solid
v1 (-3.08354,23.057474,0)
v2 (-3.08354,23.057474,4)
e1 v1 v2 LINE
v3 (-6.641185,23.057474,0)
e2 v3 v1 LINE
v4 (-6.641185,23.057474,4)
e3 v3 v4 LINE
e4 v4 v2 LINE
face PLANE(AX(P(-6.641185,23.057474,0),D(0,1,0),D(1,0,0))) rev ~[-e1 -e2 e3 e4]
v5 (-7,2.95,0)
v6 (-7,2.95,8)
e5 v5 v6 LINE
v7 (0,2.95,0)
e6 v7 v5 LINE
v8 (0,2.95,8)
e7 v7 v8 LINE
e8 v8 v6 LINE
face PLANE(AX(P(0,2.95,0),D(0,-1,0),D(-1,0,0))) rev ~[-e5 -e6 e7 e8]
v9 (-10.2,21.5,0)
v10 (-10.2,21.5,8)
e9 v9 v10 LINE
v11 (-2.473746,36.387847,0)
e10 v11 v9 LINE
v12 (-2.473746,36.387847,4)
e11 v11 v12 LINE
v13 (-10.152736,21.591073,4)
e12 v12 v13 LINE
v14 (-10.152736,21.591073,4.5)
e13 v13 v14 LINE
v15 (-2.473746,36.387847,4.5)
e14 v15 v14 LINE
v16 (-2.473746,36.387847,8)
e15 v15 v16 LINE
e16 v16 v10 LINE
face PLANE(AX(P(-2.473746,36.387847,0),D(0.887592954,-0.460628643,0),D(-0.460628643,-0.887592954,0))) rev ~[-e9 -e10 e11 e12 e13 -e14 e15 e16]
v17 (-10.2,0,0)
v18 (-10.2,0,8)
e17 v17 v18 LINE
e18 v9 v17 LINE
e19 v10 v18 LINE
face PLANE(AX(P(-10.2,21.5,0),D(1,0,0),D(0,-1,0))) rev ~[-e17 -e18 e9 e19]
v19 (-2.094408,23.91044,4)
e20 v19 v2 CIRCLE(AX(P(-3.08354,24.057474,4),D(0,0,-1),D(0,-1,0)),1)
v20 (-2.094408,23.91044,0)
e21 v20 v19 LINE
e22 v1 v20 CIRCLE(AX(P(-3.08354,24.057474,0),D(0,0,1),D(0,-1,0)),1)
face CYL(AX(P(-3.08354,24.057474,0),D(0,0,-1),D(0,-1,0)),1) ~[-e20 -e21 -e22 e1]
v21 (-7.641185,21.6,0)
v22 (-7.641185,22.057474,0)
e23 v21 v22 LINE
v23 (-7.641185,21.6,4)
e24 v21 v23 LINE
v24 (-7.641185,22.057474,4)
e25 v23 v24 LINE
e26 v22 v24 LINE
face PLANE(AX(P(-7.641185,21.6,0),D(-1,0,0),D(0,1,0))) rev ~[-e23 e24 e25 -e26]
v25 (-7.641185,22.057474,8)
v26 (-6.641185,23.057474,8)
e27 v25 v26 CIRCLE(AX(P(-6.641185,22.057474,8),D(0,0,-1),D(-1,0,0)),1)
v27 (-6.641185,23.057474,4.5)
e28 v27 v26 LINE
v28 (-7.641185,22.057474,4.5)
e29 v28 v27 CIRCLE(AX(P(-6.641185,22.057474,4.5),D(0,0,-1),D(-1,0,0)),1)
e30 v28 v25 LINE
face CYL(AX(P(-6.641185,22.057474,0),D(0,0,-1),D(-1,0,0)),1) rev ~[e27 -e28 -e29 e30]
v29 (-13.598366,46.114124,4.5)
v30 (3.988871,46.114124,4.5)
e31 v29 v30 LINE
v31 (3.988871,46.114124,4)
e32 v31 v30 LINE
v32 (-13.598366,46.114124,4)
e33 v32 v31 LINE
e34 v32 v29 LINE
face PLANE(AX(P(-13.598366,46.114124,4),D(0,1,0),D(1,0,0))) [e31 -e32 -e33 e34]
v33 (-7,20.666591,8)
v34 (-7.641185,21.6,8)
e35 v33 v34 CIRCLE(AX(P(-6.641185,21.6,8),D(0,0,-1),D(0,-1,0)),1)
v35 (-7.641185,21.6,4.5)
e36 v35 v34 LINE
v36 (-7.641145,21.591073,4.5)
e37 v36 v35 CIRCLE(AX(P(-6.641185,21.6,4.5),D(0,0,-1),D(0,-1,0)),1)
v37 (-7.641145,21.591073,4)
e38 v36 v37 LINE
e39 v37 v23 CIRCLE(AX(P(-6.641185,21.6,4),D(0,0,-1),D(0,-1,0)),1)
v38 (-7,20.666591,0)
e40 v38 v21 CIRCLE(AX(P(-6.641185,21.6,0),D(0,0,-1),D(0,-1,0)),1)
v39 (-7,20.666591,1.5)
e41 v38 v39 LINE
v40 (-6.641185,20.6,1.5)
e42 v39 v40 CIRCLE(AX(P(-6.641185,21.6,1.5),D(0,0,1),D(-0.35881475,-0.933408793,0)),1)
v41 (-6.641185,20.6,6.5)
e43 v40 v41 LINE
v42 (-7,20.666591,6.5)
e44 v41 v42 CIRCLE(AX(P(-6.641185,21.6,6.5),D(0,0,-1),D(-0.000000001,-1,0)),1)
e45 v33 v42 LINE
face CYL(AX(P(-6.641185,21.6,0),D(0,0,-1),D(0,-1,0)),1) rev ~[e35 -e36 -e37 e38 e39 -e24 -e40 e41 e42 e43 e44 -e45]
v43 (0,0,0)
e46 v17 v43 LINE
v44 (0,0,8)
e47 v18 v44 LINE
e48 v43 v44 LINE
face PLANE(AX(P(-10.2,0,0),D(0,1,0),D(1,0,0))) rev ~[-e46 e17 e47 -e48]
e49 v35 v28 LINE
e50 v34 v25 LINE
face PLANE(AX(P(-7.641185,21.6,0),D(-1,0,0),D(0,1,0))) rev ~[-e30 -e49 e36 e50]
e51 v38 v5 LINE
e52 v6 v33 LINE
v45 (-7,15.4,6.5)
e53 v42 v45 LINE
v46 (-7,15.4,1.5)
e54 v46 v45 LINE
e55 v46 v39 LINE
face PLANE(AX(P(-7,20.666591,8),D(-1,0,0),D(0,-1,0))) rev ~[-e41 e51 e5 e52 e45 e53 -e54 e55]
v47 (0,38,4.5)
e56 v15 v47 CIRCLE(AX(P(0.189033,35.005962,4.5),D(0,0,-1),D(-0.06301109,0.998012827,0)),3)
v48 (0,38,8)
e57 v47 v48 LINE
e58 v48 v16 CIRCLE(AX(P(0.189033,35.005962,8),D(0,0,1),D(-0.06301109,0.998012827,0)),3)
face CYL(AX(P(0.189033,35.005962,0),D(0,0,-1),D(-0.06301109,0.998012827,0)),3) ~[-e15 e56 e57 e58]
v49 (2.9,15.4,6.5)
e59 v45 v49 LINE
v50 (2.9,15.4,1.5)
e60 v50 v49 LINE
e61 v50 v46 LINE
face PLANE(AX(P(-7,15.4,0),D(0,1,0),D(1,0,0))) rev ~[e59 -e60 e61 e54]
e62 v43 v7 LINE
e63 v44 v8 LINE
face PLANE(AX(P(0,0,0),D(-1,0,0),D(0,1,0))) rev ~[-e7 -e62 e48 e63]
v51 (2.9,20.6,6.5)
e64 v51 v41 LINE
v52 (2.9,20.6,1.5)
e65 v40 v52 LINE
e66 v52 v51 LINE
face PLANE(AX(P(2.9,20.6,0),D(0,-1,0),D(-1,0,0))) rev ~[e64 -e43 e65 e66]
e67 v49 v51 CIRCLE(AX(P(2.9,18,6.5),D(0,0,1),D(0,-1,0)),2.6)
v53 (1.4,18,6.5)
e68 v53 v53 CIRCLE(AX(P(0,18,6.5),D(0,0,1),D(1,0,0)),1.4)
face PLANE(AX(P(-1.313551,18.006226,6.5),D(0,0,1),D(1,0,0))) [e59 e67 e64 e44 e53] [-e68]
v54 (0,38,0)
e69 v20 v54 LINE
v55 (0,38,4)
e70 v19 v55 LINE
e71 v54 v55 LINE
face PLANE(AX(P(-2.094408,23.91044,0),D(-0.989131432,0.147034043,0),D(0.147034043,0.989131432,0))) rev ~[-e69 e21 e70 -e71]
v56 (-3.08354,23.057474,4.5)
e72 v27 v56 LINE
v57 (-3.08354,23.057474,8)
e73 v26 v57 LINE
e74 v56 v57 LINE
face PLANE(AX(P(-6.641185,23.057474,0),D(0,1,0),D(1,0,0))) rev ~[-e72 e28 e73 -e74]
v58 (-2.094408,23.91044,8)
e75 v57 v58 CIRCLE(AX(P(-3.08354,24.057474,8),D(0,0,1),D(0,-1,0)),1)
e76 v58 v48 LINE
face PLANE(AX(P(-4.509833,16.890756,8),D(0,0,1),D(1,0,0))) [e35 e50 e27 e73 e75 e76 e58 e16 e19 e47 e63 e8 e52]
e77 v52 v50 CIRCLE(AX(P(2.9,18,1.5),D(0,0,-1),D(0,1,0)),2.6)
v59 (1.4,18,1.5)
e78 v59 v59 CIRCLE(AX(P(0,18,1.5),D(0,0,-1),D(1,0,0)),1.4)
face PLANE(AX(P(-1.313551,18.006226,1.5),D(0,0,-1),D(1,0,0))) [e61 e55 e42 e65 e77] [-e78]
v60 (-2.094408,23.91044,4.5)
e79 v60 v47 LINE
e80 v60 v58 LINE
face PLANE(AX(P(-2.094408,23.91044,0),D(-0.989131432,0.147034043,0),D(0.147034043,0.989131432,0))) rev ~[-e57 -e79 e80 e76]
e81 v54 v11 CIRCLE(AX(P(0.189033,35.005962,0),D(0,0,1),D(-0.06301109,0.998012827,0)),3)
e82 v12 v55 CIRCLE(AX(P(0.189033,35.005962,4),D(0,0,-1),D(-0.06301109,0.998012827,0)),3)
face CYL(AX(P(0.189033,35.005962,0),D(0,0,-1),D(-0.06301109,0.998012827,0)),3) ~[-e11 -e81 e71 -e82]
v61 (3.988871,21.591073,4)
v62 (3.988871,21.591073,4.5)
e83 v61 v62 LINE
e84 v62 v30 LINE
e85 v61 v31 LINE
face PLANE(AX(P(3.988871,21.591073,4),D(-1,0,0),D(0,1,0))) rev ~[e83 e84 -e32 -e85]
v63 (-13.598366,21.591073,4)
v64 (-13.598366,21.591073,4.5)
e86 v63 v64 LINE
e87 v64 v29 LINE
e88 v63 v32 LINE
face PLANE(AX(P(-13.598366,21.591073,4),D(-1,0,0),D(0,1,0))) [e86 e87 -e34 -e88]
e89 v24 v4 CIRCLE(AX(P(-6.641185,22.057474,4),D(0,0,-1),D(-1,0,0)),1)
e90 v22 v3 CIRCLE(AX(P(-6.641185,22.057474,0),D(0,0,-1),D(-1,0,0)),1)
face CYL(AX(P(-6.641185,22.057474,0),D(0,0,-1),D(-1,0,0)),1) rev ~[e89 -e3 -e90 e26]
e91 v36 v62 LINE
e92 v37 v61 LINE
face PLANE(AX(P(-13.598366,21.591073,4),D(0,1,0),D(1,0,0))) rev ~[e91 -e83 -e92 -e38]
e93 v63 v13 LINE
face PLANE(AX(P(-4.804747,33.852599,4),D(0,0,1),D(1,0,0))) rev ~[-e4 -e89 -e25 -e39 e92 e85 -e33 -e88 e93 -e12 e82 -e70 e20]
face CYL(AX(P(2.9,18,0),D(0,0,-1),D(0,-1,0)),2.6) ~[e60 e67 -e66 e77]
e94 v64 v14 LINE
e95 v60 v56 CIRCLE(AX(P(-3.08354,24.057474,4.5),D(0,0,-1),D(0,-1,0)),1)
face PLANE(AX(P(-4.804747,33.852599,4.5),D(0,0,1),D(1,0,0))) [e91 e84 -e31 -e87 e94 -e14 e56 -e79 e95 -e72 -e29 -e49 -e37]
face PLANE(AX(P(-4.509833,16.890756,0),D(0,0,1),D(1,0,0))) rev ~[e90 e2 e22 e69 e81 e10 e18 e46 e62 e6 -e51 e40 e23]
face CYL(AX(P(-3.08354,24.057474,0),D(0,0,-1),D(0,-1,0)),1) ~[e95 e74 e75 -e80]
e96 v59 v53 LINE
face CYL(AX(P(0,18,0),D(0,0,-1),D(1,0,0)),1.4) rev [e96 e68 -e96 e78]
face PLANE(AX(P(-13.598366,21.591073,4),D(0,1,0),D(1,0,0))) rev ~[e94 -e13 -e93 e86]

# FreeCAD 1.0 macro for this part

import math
import FreeCAD as App
import Part
import Sketcher
from FreeCAD import Vector


def add_polygon(sketch, points):
    """Adds a closed chain of lines whose ends are joined by coincident constraints."""
    first, n = sketch.GeometryCount, len(points)
    for a, b in zip(points, points[1:] + points[:1]):
        sketch.addGeometry(Part.LineSegment(App.Vector(*a, 0), App.Vector(*b, 0)), False)
    for i in range(n):
        sketch.addConstraint(Sketcher.Constraint("Coincident", first + i, 2, first + (i + 1) % n, 1))

doc = App.newDocument("Part")
body = doc.addObject("PartDesign::Body", "Body")

sketch1 = body.newObject("Sketcher::SketchObject", "Sketch")
sketch1.AttachmentSupport = (doc.getObject("XY_Plane"), [""])
sketch1.MapMode = "FlatFace"
sketch1.addGeometry([
    Part.LineSegment(Vector(-10.2, 0, 0), Vector(0, 0, 0)),
    Part.LineSegment(Vector(0, 0, 0), Vector(0, 2.95, 0)),
    Part.LineSegment(Vector(0, 2.95, 0), Vector(-7, 2.95, 0)),
    Part.LineSegment(Vector(-7, 2.95, 0), Vector(-7, 15.4, 0)),
    Part.LineSegment(Vector(-7, 15.4, 0), Vector(2.9, 15.4, 0)),
    Part.ArcOfCircle(Part.Circle(Vector(2.9, 18, 0), Vector(0, 0, 1), 2.6), math.radians(-90), math.radians(90)),
    Part.LineSegment(Vector(2.9, 20.6, 0), Vector(-6.64, 20.6, 0)),
    Part.ArcOfCircle(Part.Circle(Vector(-6.64, 21.6, 0), Vector(0, 0, 1), 1), math.radians(180), math.radians(270)),
    Part.LineSegment(Vector(-7.64, 21.6, 0), Vector(-7.64, 22.06, 0)),
    Part.ArcOfCircle(Part.Circle(Vector(-6.64, 22.06, 0), Vector(0, 0, 1), 1), math.radians(90), math.radians(180)),
    Part.LineSegment(Vector(-6.64, 23.06, 0), Vector(-3.08, 23.06, 0)),
    Part.ArcOfCircle(Part.Circle(Vector(-3.08, 24.06, 0), Vector(0, 0, 1), 1), math.radians(-90), math.radians(-8)),
    Part.LineSegment(Vector(-2.09, 23.91, 0), Vector(0, 38, 0)),
    Part.ArcOfCircle(Part.Circle(Vector(0.19, 35.01, 0), Vector(0, 0, 1), 3), math.radians(94), math.radians(153)),
    Part.LineSegment(Vector(-2.47, 36.39, 0), Vector(-10.2, 21.5, 0)),
    Part.LineSegment(Vector(-10.2, 21.5, 0), Vector(-10.2, 0, 0)),
    Part.Circle(Vector(0, 18, 0), Vector(0, 0, 1), 1.4),
], False)
sketch1.addConstraint([
    Sketcher.Constraint("Coincident", 0, 2, 1, 1),
    Sketcher.Constraint("Coincident", 1, 2, 2, 1),
    Sketcher.Constraint("Coincident", 2, 2, 3, 1),
    Sketcher.Constraint("Coincident", 3, 2, 4, 1),
    Sketcher.Constraint("Tangent", 4, 2, 5, 1),
    Sketcher.Constraint("Tangent", 5, 2, 6, 1),
    Sketcher.Constraint("Tangent", 6, 2, 7, 2),
    Sketcher.Constraint("Tangent", 7, 1, 8, 1),
    Sketcher.Constraint("Tangent", 8, 2, 9, 2),
    Sketcher.Constraint("Tangent", 9, 1, 10, 1),
    Sketcher.Constraint("Tangent", 10, 2, 11, 1),
    Sketcher.Constraint("Tangent", 11, 2, 12, 1),
    Sketcher.Constraint("Coincident", 12, 2, 13, 1),
    Sketcher.Constraint("Tangent", 13, 2, 14, 1),
    Sketcher.Constraint("Coincident", 14, 2, 15, 1),
    Sketcher.Constraint("Coincident", 15, 2, 0, 1),
    Sketcher.Constraint("Horizontal", 0),
    Sketcher.Constraint("Vertical", 1),
    Sketcher.Constraint("Horizontal", 2),
    Sketcher.Constraint("Vertical", 3),
    Sketcher.Constraint("Horizontal", 4),
    Sketcher.Constraint("Horizontal", 6),
    Sketcher.Constraint("Vertical", 8),
    Sketcher.Constraint("Horizontal", 10),
    Sketcher.Constraint("Vertical", 15),
    Sketcher.Constraint("Coincident", 0, 2, -1, 1),
    Sketcher.Constraint("Equal", 7, 9),
    Sketcher.Constraint("Equal", 9, 11),
    Sketcher.Constraint("PointOnObject", 16, 3, -2),
    Sketcher.Constraint("PointOnObject", 12, 2, -2),
    Sketcher.Constraint("Horizontal", 5, 3, 16, 3),
    Sketcher.Constraint("Radius", 7, 1.0),
    Sketcher.Constraint("Radius", 13, 3.0),
    Sketcher.Constraint("Diameter", 16, 2.8),
    Sketcher.Constraint("Radius", 5, 2.6),
    Sketcher.Constraint("DistanceX", 2, 2, 2, 1, 7.0),
    Sketcher.Constraint("DistanceX", 0, 1, 0, 2, 10.2),
    Sketcher.Constraint("DistanceX", 4, 1, 4, 2, 9.9),
    Sketcher.Constraint("DistanceY", 15, 2, 15, 1, 21.5),
    Sketcher.Constraint("DistanceY", -1, 1, 5, 3, 18.0),
    Sketcher.Constraint("DistanceY", -1, 1, 12, 2, 38.0),
    Sketcher.Constraint("DistanceY", 1, 1, 1, 2, 2.95),
    Sketcher.Constraint("DistanceX", 6, 2, 6, 1, 9.541185),
    Sketcher.Constraint("DistanceX", 10, 1, 10, 2, 3.557646),
    Sketcher.Constraint("DistanceY", 8, 1, 8, 2, 0.457474),
    Sketcher.Constraint("DistanceY", -1, 1, 13, 3, 35.005962),
])
pad1 = body.newObject("PartDesign::Pad", "Pad")
pad1.Profile = sketch1
pad1.Length = 8

sketch2 = body.newObject("Sketcher::SketchObject", "Sketch001")
sketch2.AttachmentSupport = (doc.getObject("XY_Plane"), [""])
sketch2.MapMode = "FlatFace"
sketch2.AttachmentOffset = App.Placement(Vector(0, 0, 4), App.Rotation())
add_polygon(sketch2, [(-14, 46), (-14, 22), (4, 22), (4, 46)])
sketch2.addConstraint([
    Sketcher.Constraint("Vertical", 0),
    Sketcher.Constraint("Horizontal", 1),
    Sketcher.Constraint("Vertical", 2),
    Sketcher.Constraint("Horizontal", 3),
    Sketcher.Constraint("DistanceY", 0, 2, 0, 1, 24.523051),
    Sketcher.Constraint("DistanceX", 1, 1, 1, 2, 17.587237),
    Sketcher.Constraint("DistanceX", -1, 1, 1, 2, 3.988871),
    Sketcher.Constraint("DistanceY", -1, 1, 0, 2, 21.591073),
])
pad2 = body.newObject("PartDesign::Pad", "Pad001")
pad2.Profile = sketch2
pad2.Length = 0.5

sketch3 = body.newObject("Sketcher::SketchObject", "Sketch002")
sketch3.AttachmentSupport = (doc.getObject("XY_Plane"), [""])
sketch3.MapMode = "FlatFace"
sketch3.AttachmentOffset = App.Placement(Vector(0, 0, 8), App.Rotation())
sketch3.addGeometry([
    Part.LineSegment(Vector(-7, 20.67, 0), Vector(-7, 15.4, 0)),
    Part.LineSegment(Vector(-7, 15.4, 0), Vector(2.9, 15.4, 0)),
    Part.ArcOfCircle(Part.Circle(Vector(2.9, 18, 0), Vector(0, 0, 1), 2.6), math.radians(-90), math.radians(90)),
    Part.LineSegment(Vector(2.9, 20.6, 0), Vector(-6.64, 20.6, 0)),
    Part.ArcOfCircle(Part.Circle(Vector(-6.64, 21.6, 0), Vector(0, 0, 1), 1), math.radians(-111), math.radians(-90)),
    Part.Circle(Vector(0, 18, 0), Vector(0, 0, 1), 1.4),
], False)
sketch3.addConstraint([
    Sketcher.Constraint("Coincident", 0, 2, 1, 1),
    Sketcher.Constraint("Tangent", 1, 2, 2, 1),
    Sketcher.Constraint("Tangent", 2, 2, 3, 1),
    Sketcher.Constraint("Tangent", 3, 2, 4, 2),
    Sketcher.Constraint("Coincident", 4, 1, 0, 1),
    Sketcher.Constraint("Vertical", 0),
    Sketcher.Constraint("Horizontal", 1),
    Sketcher.Constraint("Horizontal", 3),
    Sketcher.Constraint("PointOnObject", 5, 3, -2),
    Sketcher.Constraint("Horizontal", 2, 3, 5, 3),
    Sketcher.Constraint("Radius", 4, 1.0),
    Sketcher.Constraint("Diameter", 5, 2.8),
    Sketcher.Constraint("Radius", 2, 2.6),
    Sketcher.Constraint("DistanceX", 1, 1, 1, 2, 9.9),
    Sketcher.Constraint("DistanceY", -1, 1, 2, 3, 18.0),
    Sketcher.Constraint("DistanceX", 0, 2, -1, 1, 7.0),
    Sketcher.Constraint("DistanceY", 0, 2, 0, 1, 5.266591),
])
pocket1 = body.newObject("PartDesign::Pocket", "Pocket")
pocket1.Profile = sketch3
pocket1.Length = 1.5

sketch4 = body.newObject("Sketcher::SketchObject", "Sketch003")
sketch4.AttachmentSupport = (doc.getObject("XY_Plane"), [""])
sketch4.MapMode = "FlatFace"
sketch4.addGeometry([
    Part.LineSegment(Vector(2.9, 15.4, 0), Vector(-7, 15.4, 0)),
    Part.LineSegment(Vector(-7, 15.4, 0), Vector(-7, 20.67, 0)),
    Part.ArcOfCircle(Part.Circle(Vector(-6.64, 21.6, 0), Vector(0, 0, 1), 1), math.radians(-111), math.radians(-90)),
    Part.LineSegment(Vector(-6.64, 20.6, 0), Vector(2.9, 20.6, 0)),
    Part.ArcOfCircle(Part.Circle(Vector(2.9, 18, 0), Vector(0, 0, 1), 2.6), math.radians(-90), math.radians(90)),
    Part.Circle(Vector(0, 18, 0), Vector(0, 0, 1), 1.4),
], False)
sketch4.addConstraint([
    Sketcher.Constraint("Coincident", 0, 2, 1, 1),
    Sketcher.Constraint("Coincident", 1, 2, 2, 1),
    Sketcher.Constraint("Tangent", 2, 2, 3, 1),
    Sketcher.Constraint("Tangent", 3, 2, 4, 2),
    Sketcher.Constraint("Tangent", 4, 1, 0, 1),
    Sketcher.Constraint("Horizontal", 0),
    Sketcher.Constraint("Vertical", 1),
    Sketcher.Constraint("Horizontal", 3),
    Sketcher.Constraint("PointOnObject", 5, 3, -2),
    Sketcher.Constraint("Horizontal", 4, 3, 5, 3),
    Sketcher.Constraint("Radius", 2, 1.0),
    Sketcher.Constraint("Diameter", 5, 2.8),
    Sketcher.Constraint("Radius", 4, 2.6),
    Sketcher.Constraint("DistanceX", 0, 2, 0, 1, 9.9),
    Sketcher.Constraint("DistanceY", -1, 1, 4, 3, 18.0),
    Sketcher.Constraint("DistanceX", 0, 2, -1, 1, 7.0),
    Sketcher.Constraint("DistanceY", 1, 1, 1, 2, 5.266591),
])
pocket2 = body.newObject("PartDesign::Pocket", "Pocket001")
pocket2.Profile = sketch4
pocket2.Length = 1.5
pocket2.Reversed = True

doc.recompute()
